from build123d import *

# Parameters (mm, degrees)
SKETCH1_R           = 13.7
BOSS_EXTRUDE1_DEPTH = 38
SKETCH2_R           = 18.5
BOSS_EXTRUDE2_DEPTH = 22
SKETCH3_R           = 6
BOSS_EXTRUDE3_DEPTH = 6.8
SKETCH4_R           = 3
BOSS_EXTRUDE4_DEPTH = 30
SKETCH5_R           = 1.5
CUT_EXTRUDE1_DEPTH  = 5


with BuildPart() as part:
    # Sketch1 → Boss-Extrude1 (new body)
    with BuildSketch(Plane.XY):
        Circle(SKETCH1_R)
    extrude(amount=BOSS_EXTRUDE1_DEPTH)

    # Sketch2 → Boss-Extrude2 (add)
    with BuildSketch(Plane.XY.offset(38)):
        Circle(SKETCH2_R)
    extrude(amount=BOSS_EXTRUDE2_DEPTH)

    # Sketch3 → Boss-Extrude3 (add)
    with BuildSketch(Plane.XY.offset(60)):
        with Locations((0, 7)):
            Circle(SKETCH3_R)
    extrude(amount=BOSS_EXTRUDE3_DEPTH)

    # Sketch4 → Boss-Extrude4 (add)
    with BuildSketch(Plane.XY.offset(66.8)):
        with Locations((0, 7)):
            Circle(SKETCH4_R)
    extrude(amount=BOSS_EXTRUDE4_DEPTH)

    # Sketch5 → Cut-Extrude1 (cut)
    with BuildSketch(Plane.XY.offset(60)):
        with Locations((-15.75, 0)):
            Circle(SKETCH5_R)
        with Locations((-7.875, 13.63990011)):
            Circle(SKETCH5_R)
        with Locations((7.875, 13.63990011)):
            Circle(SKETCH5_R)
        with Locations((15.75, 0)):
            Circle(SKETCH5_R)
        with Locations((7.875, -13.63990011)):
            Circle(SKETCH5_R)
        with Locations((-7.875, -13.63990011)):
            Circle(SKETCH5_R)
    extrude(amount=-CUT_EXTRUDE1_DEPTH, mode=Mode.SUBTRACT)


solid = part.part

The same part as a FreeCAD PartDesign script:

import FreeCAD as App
import Part
import Sketcher
Q = App.Units.Quantity

doc = App.newDocument("Part")
body = doc.addObject("PartDesign::Body", "Body")

# Sketch on XY plane
sketch1 = body.newObject("Sketcher::SketchObject", "Sketch")
sketch1.AttachmentSupport = (doc.getObject("XY_Plane"), [""])
sketch1.MapMode = "FlatFace"
sketch1.addGeometry(Part.Circle(App.Vector(0, 0, 0), App.Vector(0, 0, 1), 14), False)
sketch1.addConstraint([
    Sketcher.Constraint("Coincident", 0, 3, -1, 1),
    Sketcher.Constraint("Diameter", 0, Q("27.4 mm")),
])
pad1 = body.newObject("PartDesign::Pad", "Pad")
pad1.Profile = sketch1
pad1.Length = 38

# Sketch on XY plane
sketch2 = body.newObject("Sketcher::SketchObject", "Sketch001")
sketch2.AttachmentSupport = (doc.getObject("XY_Plane"), [""])
sketch2.MapMode = "FlatFace"
sketch2.AttachmentOffset = App.Placement(App.Vector(0, 0, 38), App.Rotation())
sketch2.addGeometry(Part.Circle(App.Vector(0, 0, 0), App.Vector(0, 0, 1), 18), False)
sketch2.addConstraint([
    Sketcher.Constraint("Coincident", 0, 3, -1, 1),
    Sketcher.Constraint("Diameter", 0, Q("37 mm")),
])
pad2 = body.newObject("PartDesign::Pad", "Pad001")
pad2.Profile = sketch2
pad2.Length = 22

# Sketch on XY plane
sketch3 = body.newObject("Sketcher::SketchObject", "Sketch002")
sketch3.AttachmentSupport = (doc.getObject("XY_Plane"), [""])
sketch3.MapMode = "FlatFace"
sketch3.AttachmentOffset = App.Placement(App.Vector(0, 0, 60), App.Rotation())
sketch3.addGeometry(Part.Circle(App.Vector(0, 7, 0), App.Vector(0, 0, 1), 6), False)
sketch3.addConstraint([
    Sketcher.Constraint("PointOnObject", 0, 3, -2),
    Sketcher.Constraint("Diameter", 0, Q("12 mm")),
    Sketcher.Constraint("DistanceY", -1, 1, 0, 3, Q("7 mm")),
])
pad3 = body.newObject("PartDesign::Pad", "Pad002")
pad3.Profile = sketch3
pad3.Length = 6.8

# Sketch on XY plane
sketch4 = body.newObject("Sketcher::SketchObject", "Sketch003")
sketch4.AttachmentSupport = (doc.getObject("XY_Plane"), [""])
sketch4.MapMode = "FlatFace"
sketch4.AttachmentOffset = App.Placement(App.Vector(0, 0, 66.8), App.Rotation())
sketch4.addGeometry(Part.Circle(App.Vector(0, 7, 0), App.Vector(0, 0, 1), 3), False)
sketch4.addConstraint([
    Sketcher.Constraint("PointOnObject", 0, 3, -2),
    Sketcher.Constraint("Diameter", 0, Q("6 mm")),
    Sketcher.Constraint("DistanceY", -1, 1, 0, 3, Q("7 mm")),
])
pad4 = body.newObject("PartDesign::Pad", "Pad003")
pad4.Profile = sketch4
pad4.Length = 30

# Sketch on XY plane
sketch5 = body.newObject("Sketcher::SketchObject", "Sketch004")
sketch5.AttachmentSupport = (doc.getObject("XY_Plane"), [""])
sketch5.MapMode = "FlatFace"
sketch5.AttachmentOffset = App.Placement(App.Vector(0, 0, 60), App.Rotation())
sketch5.addGeometry([
    Part.Circle(App.Vector(-15.8, 0, 0), App.Vector(0, 0, 1), 1.5),  # 0
    Part.Circle(App.Vector(-7.9, 13.6, 0), App.Vector(0, 0, 1), 1.5),  # 1
    Part.Circle(App.Vector(7.9, 13.6, 0), App.Vector(0, 0, 1), 1.5),  # 2
    Part.Circle(App.Vector(15.8, 0, 0), App.Vector(0, 0, 1), 1.5),  # 3
    Part.Circle(App.Vector(7.9, -13.6, 0), App.Vector(0, 0, 1), 1.5),  # 4
    Part.Circle(App.Vector(-7.9, -13.6, 0), App.Vector(0, 0, 1), 1.5),  # 5
], False)
sketch5.addConstraint([
    Sketcher.Constraint("Equal", 0, 1),
    Sketcher.Constraint("Equal", 1, 2),
    Sketcher.Constraint("Equal", 2, 3),
    Sketcher.Constraint("Equal", 3, 4),
    Sketcher.Constraint("Equal", 4, 5),
    Sketcher.Constraint("Symmetric", 0, 3, 3, 3, -1, 1),
    Sketcher.Constraint("Symmetric", 1, 3, 4, 3, -1, 1),
    Sketcher.Constraint("Symmetric", 2, 3, 5, 3, -1, 1),
    Sketcher.Constraint("Symmetric", 1, 3, 2, 3, -2),
    Sketcher.Constraint("PointOnObject", 0, 3, -1),
    Sketcher.Constraint("Diameter", 0, Q("3 mm")),
    Sketcher.Constraint("DistanceX", 0, 3, 3, 3, Q("31.5 mm")),
    Sketcher.Constraint("DistanceX", 1, 3, 2, 3, Q("15.75 mm")),
    Sketcher.Constraint("DistanceY", -1, 1, 1, 3, Q("13.6399 mm")),
])
pocket1 = body.newObject("PartDesign::Pocket", "Pocket")
pocket1.Profile = sketch5
pocket1.Length = 5

doc.recompute()
